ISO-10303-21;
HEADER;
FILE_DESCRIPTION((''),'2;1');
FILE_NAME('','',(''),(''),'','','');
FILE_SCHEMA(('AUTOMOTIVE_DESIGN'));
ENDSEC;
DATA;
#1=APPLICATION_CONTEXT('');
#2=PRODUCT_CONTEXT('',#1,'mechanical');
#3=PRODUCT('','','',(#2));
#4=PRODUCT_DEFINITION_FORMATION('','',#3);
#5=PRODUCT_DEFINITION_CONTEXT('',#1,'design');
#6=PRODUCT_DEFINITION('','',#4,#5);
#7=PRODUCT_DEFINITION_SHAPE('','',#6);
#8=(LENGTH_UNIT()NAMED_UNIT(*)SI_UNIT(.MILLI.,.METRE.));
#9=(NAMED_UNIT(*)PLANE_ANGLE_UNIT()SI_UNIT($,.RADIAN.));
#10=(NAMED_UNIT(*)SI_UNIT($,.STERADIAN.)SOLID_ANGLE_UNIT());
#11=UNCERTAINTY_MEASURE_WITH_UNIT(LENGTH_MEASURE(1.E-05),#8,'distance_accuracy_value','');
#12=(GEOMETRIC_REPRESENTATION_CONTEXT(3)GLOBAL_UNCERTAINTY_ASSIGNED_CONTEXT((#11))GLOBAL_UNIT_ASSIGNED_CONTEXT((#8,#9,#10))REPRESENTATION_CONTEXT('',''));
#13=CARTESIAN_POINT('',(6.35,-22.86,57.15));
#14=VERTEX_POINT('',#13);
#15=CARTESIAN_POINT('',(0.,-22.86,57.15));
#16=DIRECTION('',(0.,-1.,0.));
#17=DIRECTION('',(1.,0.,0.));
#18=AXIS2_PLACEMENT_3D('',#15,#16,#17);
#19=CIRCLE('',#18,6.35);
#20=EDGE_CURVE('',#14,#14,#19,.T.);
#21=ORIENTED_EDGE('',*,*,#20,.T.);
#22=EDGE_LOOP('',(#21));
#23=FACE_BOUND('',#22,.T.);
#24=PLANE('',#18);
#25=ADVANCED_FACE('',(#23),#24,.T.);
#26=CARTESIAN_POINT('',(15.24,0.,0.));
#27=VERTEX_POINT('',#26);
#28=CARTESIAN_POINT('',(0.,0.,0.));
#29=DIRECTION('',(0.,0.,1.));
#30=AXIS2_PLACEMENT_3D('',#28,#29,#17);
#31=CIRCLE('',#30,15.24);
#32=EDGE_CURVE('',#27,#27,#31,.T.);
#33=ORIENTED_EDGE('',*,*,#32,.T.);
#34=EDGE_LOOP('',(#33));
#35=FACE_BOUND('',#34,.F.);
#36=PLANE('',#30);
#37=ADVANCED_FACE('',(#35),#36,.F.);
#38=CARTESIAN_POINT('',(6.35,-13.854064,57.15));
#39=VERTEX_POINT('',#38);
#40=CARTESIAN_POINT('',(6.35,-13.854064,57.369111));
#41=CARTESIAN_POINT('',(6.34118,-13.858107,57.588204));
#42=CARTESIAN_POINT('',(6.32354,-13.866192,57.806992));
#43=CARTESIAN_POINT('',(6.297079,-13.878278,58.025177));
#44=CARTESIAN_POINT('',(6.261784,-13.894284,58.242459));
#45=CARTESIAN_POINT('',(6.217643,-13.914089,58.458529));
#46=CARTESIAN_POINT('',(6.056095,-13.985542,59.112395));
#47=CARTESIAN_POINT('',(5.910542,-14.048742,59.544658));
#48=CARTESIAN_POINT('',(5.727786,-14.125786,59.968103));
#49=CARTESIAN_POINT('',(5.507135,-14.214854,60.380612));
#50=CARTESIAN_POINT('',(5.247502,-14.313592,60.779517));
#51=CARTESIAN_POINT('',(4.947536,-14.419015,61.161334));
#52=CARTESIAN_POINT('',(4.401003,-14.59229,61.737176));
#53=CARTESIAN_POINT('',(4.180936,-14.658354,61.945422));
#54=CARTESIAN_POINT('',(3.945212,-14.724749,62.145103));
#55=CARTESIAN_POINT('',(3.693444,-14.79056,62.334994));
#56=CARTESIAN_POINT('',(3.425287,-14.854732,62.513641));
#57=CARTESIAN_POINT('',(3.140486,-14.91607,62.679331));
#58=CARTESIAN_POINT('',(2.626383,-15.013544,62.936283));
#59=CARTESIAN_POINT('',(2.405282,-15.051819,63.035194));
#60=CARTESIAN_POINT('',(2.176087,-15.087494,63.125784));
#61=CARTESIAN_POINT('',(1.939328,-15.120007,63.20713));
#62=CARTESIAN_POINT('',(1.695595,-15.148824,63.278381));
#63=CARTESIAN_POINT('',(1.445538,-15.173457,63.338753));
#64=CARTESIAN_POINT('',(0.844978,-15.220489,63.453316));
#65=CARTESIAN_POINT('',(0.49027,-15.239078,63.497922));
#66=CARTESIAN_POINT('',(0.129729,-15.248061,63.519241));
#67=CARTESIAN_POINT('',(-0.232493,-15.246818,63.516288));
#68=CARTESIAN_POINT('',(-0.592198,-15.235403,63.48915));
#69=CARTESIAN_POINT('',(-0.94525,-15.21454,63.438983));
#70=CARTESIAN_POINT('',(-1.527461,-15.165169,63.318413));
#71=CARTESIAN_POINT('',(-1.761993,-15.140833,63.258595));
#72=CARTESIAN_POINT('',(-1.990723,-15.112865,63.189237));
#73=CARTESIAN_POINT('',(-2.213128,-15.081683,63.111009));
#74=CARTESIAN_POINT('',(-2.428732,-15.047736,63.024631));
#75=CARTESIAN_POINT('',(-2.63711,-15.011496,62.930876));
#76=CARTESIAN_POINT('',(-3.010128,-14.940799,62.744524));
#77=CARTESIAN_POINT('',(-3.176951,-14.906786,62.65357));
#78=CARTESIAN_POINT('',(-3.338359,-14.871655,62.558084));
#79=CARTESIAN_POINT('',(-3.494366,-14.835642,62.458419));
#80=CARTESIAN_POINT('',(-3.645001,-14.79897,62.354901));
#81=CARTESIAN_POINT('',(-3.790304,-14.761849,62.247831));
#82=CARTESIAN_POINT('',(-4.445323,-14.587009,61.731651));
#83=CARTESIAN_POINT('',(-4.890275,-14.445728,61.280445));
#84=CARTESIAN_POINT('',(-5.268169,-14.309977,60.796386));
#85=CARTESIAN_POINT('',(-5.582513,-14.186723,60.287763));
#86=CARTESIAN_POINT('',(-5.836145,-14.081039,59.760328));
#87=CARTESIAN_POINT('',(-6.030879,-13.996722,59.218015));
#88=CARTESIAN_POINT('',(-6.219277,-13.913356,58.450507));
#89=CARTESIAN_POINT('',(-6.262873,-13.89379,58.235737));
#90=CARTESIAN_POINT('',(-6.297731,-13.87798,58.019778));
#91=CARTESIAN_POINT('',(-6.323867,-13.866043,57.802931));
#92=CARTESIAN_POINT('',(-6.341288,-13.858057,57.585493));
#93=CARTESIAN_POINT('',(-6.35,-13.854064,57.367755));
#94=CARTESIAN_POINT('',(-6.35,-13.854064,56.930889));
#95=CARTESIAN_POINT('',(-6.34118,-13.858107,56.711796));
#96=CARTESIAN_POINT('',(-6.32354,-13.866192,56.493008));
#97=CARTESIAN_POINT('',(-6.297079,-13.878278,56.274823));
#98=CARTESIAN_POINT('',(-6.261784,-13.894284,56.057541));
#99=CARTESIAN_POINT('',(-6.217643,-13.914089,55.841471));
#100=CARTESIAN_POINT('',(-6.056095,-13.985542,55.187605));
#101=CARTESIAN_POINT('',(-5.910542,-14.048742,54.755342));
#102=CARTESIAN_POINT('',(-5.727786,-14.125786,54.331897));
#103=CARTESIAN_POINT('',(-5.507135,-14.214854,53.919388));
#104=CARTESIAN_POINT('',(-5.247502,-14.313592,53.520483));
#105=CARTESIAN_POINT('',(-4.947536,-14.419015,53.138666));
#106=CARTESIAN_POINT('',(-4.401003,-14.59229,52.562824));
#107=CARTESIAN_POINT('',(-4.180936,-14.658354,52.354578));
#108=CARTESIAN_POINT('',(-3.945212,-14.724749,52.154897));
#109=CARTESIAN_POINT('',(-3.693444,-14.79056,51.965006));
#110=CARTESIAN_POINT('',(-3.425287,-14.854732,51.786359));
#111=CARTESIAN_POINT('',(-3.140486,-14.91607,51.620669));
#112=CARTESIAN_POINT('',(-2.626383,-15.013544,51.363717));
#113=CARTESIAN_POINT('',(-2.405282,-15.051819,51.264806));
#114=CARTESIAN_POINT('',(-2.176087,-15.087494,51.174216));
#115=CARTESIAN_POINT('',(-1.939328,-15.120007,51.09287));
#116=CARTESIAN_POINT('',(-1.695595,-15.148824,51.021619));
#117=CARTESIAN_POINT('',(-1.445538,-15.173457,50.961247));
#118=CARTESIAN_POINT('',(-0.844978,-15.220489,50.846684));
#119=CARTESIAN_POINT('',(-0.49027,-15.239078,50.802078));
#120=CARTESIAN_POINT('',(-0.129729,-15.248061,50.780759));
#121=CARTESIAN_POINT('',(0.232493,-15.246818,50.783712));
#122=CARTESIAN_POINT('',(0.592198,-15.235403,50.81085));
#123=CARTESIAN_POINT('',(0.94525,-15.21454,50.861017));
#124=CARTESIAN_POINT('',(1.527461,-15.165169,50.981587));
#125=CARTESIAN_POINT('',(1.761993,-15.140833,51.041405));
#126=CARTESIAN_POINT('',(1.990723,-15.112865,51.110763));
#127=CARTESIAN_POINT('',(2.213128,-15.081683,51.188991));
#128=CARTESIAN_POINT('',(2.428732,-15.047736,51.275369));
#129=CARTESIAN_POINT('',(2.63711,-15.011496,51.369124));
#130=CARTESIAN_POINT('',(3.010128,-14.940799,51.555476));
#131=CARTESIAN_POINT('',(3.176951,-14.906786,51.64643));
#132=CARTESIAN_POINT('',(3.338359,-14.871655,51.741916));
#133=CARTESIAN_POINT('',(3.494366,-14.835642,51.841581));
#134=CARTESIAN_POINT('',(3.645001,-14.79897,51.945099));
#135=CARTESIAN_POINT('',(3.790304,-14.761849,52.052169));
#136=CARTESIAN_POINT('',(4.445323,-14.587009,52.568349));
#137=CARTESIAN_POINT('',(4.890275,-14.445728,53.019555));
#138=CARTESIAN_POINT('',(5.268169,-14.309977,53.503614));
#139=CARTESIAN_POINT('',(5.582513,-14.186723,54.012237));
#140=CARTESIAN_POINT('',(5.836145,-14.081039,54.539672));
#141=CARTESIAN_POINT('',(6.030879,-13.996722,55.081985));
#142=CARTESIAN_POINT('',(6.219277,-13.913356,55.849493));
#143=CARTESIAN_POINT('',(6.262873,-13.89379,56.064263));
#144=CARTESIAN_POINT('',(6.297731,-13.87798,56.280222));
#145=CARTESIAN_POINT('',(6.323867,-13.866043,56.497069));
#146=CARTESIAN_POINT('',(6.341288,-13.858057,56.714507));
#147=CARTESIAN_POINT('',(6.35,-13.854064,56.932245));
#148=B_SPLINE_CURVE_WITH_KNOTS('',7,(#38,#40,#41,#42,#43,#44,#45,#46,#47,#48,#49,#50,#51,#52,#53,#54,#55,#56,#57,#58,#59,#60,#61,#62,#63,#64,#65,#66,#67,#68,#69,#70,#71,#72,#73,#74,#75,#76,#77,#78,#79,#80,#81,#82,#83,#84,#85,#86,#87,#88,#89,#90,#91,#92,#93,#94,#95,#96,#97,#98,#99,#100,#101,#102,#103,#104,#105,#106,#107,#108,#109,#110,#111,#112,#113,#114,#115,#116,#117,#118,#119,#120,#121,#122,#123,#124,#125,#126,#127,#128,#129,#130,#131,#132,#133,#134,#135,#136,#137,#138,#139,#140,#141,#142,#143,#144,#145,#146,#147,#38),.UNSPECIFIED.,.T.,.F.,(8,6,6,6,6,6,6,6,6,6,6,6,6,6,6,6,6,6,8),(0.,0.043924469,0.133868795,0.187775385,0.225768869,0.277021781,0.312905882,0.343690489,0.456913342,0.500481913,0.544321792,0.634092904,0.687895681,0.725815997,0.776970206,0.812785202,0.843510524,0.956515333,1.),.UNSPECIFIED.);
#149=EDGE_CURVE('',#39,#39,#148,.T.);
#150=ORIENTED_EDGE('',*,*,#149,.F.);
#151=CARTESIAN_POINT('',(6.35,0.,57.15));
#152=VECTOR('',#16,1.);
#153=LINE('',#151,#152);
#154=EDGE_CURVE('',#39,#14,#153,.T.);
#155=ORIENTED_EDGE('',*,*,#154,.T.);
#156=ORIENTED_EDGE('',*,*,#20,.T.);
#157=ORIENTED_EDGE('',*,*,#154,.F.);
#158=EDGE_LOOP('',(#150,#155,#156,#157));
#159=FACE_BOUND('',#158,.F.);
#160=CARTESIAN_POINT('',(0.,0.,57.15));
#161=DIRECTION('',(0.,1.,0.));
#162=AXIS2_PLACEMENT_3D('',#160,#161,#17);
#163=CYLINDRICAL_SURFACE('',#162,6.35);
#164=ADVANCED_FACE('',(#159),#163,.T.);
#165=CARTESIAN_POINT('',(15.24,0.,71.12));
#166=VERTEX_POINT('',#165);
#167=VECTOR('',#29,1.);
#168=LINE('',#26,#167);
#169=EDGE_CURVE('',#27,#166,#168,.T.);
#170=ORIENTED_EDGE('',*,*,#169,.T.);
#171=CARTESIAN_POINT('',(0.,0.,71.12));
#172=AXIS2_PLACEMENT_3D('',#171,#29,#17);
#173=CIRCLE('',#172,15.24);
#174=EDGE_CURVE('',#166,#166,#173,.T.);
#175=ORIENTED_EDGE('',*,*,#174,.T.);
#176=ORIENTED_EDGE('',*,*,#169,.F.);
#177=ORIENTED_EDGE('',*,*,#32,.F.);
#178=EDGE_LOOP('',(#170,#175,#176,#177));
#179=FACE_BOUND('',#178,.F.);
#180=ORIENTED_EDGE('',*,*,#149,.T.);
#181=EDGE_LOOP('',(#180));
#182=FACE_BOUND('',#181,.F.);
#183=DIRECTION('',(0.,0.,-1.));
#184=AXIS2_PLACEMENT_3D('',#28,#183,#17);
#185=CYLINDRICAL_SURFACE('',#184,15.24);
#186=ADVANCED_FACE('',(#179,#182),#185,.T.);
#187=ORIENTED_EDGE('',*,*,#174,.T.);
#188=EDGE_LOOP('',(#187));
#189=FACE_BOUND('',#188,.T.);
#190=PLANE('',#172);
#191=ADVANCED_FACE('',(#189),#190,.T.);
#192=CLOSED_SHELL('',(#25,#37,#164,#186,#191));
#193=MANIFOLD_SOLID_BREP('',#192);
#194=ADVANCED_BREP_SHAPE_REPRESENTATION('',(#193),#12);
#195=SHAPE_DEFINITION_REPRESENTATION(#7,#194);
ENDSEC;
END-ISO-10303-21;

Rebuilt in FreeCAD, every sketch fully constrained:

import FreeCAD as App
import Part
import Sketcher
Q = App.Units.Quantity

doc = App.newDocument("Part")
body = doc.addObject("PartDesign::Body", "Body")

sketch1 = body.newObject("Sketcher::SketchObject", "Sketch")
sketch1.AttachmentSupport = (doc.getObject("XY_Plane"), [""])
sketch1.MapMode = "FlatFace"
sketch1.addGeometry(Part.Circle(App.Vector(0, 0, 0), App.Vector(0, 0, 1), 15), False)
sketch1.addConstraint([
    Sketcher.Constraint("Coincident", 0, 3, -1, 1),
    Sketcher.Constraint("Diameter", 0, Q("1.2 in")),
])
pad1 = body.newObject("PartDesign::Pad", "Pad")
pad1.Profile = sketch1
pad1.Length = Q("2.8 in")

sketch2 = body.newObject("Sketcher::SketchObject", "Sketch001")
sketch2.AttachmentSupport = (doc.getObject("XZ_Plane"), [""])
sketch2.MapMode = "FlatFace"
sketch2.addGeometry(Part.Circle(App.Vector(0, 57, 0), App.Vector(0, 0, 1), 6), False)
sketch2.addConstraint([
    Sketcher.Constraint("PointOnObject", 0, 3, -2),
    Sketcher.Constraint("Diameter", 0, Q("0.5 in")),
    Sketcher.Constraint("DistanceY", -1, 1, 0, 3, Q("2.25 in")),
])
pad2 = body.newObject("PartDesign::Pad", "Pad001")
pad2.Profile = sketch2
pad2.Length = Q("0.9 in")

doc.recompute()
